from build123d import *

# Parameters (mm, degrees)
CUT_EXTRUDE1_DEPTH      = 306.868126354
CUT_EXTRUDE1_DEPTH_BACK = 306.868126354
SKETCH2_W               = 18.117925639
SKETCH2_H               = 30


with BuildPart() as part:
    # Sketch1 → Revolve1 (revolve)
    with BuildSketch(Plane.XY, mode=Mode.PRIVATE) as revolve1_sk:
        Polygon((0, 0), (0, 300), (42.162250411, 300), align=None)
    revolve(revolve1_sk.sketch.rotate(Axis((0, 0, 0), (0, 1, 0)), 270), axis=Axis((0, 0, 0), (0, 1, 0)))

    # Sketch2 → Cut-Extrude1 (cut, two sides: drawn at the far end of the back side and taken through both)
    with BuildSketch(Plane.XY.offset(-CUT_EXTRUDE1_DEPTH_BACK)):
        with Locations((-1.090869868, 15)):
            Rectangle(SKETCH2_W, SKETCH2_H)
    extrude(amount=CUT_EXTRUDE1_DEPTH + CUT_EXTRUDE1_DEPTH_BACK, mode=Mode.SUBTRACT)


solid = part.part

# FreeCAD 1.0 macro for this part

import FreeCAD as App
import Part
import Sketcher
from FreeCAD import Vector
Q = App.Units.Quantity


def add_polygon(sketch, points):
    """Adds a closed chain of lines whose ends are joined by coincident constraints."""
    first, n = sketch.GeometryCount, len(points)
    for a, b in zip(points, points[1:] + points[:1]):
        sketch.addGeometry(Part.LineSegment(App.Vector(*a, 0), App.Vector(*b, 0)), False)
    for i in range(n):
        sketch.addConstraint(Sketcher.Constraint("Coincident", first + i, 2, first + (i + 1) % n, 1))

doc = App.newDocument("Part")
body = doc.addObject("PartDesign::Body", "Body")

# Sketch on XY plane
sketch1 = body.newObject("Sketcher::SketchObject", "Sketch")
sketch1.AttachmentSupport = (doc.getObject("XY_Plane"), [""])
sketch1.MapMode = "FlatFace"
add_polygon(sketch1, [(0, 300), (0, 0), (42, 300)])  # lines 0-2
sketch1.addConstraint([
    Sketcher.Constraint("Vertical", 0),
    Sketcher.Constraint("Horizontal", 2),
    Sketcher.Constraint("Coincident", 0, 2, -1, 1),
    Sketcher.Constraint("DistanceY", 0, 2, 0, 1, Q("300 mm")),
    Sketcher.Constraint("Angle", 1, Q("82 deg")),
])
revolution = body.newObject("PartDesign::Revolution", "Revolution")
revolution.Profile = sketch1
revolution.ReferenceAxis = (sketch1, ["V_Axis"])
revolution.Angle = 360

# Sketch on XY plane
sketch2 = body.newObject("Sketcher::SketchObject", "Sketch001")
sketch2.AttachmentSupport = (doc.getObject("XY_Plane"), [""])
sketch2.MapMode = "FlatFace"
add_polygon(sketch2, [(-10, 30), (-10, 0), (8, 0), (8, 30)])  # lines 0-3
sketch2.addConstraint([
    Sketcher.Constraint("Vertical", 0),
    Sketcher.Constraint("Horizontal", 1),
    Sketcher.Constraint("Vertical", 2),
    Sketcher.Constraint("Horizontal", 3),
    Sketcher.Constraint("PointOnObject", 0, 2, -1),
    Sketcher.Constraint("DistanceY", 0, 2, 0, 1, Q("30 mm")),
    Sketcher.Constraint("DistanceX", 1, 1, 1, 2, Q("18.117926 mm")),
    Sketcher.Constraint("DistanceX", 0, 2, -1, 1, Q("10.149833 mm")),
])
pocket1 = body.newObject("PartDesign::Pocket", "Pocket")
pocket1.Profile = sketch2
pocket1.Type = "ThroughAll"
pocket1.Midplane = True

doc.recompute()
